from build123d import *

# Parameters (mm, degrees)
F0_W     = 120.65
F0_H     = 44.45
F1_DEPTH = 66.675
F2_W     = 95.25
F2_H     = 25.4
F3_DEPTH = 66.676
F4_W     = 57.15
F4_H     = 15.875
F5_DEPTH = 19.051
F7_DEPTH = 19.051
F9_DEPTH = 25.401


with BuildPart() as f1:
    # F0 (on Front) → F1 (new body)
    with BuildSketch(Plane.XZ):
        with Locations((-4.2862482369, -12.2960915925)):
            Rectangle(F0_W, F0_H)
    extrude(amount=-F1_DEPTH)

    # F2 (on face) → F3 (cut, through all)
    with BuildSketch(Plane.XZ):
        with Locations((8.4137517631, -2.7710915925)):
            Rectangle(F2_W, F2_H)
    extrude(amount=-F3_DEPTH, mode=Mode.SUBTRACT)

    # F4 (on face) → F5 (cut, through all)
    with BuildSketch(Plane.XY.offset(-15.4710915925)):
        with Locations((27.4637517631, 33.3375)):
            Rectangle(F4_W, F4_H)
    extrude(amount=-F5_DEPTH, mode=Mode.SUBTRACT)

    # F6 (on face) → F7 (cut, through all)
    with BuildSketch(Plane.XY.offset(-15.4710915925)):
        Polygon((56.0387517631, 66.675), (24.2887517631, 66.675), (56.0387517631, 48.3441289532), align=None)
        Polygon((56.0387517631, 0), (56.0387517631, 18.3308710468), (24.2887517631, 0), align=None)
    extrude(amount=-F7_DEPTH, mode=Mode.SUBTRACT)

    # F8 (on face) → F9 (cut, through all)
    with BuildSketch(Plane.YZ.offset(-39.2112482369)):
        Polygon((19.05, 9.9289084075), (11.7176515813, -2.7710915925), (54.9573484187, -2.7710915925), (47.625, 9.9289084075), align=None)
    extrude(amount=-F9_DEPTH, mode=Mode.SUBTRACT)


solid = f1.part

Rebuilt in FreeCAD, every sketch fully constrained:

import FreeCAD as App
import Part
import Sketcher
Q = App.Units.Quantity

doc = App.newDocument("Part")
params = doc.addObject("Spreadsheet::Sheet", "Params")
for row, (alias, value) in enumerate([
    ("sketch1_width", "4.75 in"),
    ("sketch1_height", "1.75 in"),
    ("pad1_length", "2.625 in"),
    ("sketch2_height", "1 in"),
    ("sketch2_width", "3.75 in"),
    ("sketch3_width", "2.25 in"),
    ("sketch3_height", "0.625 in"),
    ("sketch4_width", "1.25 in"),
    ("sketch5_width", "1.125 in"),
], start=1):
    params.set(f"A{row}", alias)
    params.set(f"B{row}", "=" + value)
    params.setAlias(f"B{row}", alias)

body = doc.addObject("PartDesign::Body", "Body")

sketch1 = body.newObject("Sketcher::SketchObject", "Sketch")
sketch1.AttachmentSupport = (doc.getObject("XZ_Plane"), [""])
sketch1.MapMode = "FlatFace"
sketch1.addGeometry([
    Part.LineSegment(App.Vector(-65, 10, 0), App.Vector(-65, -35, 0)),
    Part.LineSegment(App.Vector(-65, -35, 0), App.Vector(56, -35, 0)),
    Part.LineSegment(App.Vector(56, -35, 0), App.Vector(56, 10, 0)),
    Part.LineSegment(App.Vector(56, 10, 0), App.Vector(-65, 10, 0)),
], False)
sketch1.addConstraint([
    Sketcher.Constraint("Coincident", 0, 2, 1, 1),
    Sketcher.Constraint("Coincident", 1, 2, 2, 1),
    Sketcher.Constraint("Coincident", 2, 2, 3, 1),
    Sketcher.Constraint("Coincident", 3, 2, 0, 1),
    Sketcher.Constraint("Vertical", 0),
    Sketcher.Constraint("Horizontal", 1),
    Sketcher.Constraint("Vertical", 2),
    Sketcher.Constraint("Horizontal", 3),
    Sketcher.Constraint("DistanceX", 1, 1, 1, 2, Q("4.75 in")),
    Sketcher.Constraint("DistanceY", 0, 2, 0, 1, Q("1.75 in")),
    Sketcher.Constraint("DistanceX", 0, 2, -1, 1, 64.611248),
    Sketcher.Constraint("DistanceY", 0, 2, -1, 1, 34.521092),
])
sketch1.setExpression("Constraints[8]", "Params.sketch1_width")
sketch1.setExpression("Constraints[9]", "Params.sketch1_height")
pad1 = body.newObject("PartDesign::Pad", "Pad")
pad1.Profile = sketch1
pad1.setExpression("Length", "Params.pad1_length")
pad1.Reversed = True

sketch2 = body.newObject("Sketcher::SketchObject", "Sketch001")
sketch2.AttachmentSupport = (doc.getObject("XZ_Plane"), [""])
sketch2.MapMode = "FlatFace"
sketch2.addGeometry([
    Part.LineSegment(App.Vector(-39, 10, 0), App.Vector(-39, -15, 0)),
    Part.LineSegment(App.Vector(-39, -15, 0), App.Vector(56, -15, 0)),
    Part.LineSegment(App.Vector(56, -15, 0), App.Vector(56, 10, 0)),
    Part.LineSegment(App.Vector(56, 10, 0), App.Vector(-39, 10, 0)),
], False)
sketch2.addConstraint([
    Sketcher.Constraint("Coincident", 0, 2, 1, 1),
    Sketcher.Constraint("Coincident", 1, 2, 2, 1),
    Sketcher.Constraint("Coincident", 2, 2, 3, 1),
    Sketcher.Constraint("Coincident", 3, 2, 0, 1),
    Sketcher.Constraint("Vertical", 0),
    Sketcher.Constraint("Horizontal", 1),
    Sketcher.Constraint("Vertical", 2),
    Sketcher.Constraint("Horizontal", 3),
    Sketcher.Constraint("DistanceY", 0, 2, 0, 1, Q("1 in")),
    Sketcher.Constraint("DistanceX", 1, 1, 1, 2, Q("3.75 in")),
    Sketcher.Constraint("DistanceX", 0, 2, -1, 1, 39.211248),
    Sketcher.Constraint("DistanceY", 0, 2, -1, 1, 15.471092),
])
sketch2.setExpression("Constraints[8]", "Params.sketch2_height")
sketch2.setExpression("Constraints[9]", "Params.sketch2_width")
pocket1 = body.newObject("PartDesign::Pocket", "Pocket")
pocket1.Profile = sketch2
pocket1.Type = "ThroughAll"

sketch3 = body.newObject("Sketcher::SketchObject", "Sketch002")
sketch3.AttachmentSupport = (doc.getObject("XY_Plane"), [""])
sketch3.MapMode = "FlatFace"
sketch3.AttachmentOffset = App.Placement(App.Vector(0, 0, -15.471092), App.Rotation())
sketch3.addGeometry([
    Part.LineSegment(App.Vector(-1, 41, 0), App.Vector(-1, 25, 0)),
    Part.LineSegment(App.Vector(-1, 25, 0), App.Vector(56, 25, 0)),
    Part.LineSegment(App.Vector(56, 25, 0), App.Vector(56, 41, 0)),
    Part.LineSegment(App.Vector(56, 41, 0), App.Vector(-1, 41, 0)),
], False)
sketch3.addConstraint([
    Sketcher.Constraint("Coincident", 0, 2, 1, 1),
    Sketcher.Constraint("Coincident", 1, 2, 2, 1),
    Sketcher.Constraint("Coincident", 2, 2, 3, 1),
    Sketcher.Constraint("Coincident", 3, 2, 0, 1),
    Sketcher.Constraint("Vertical", 0),
    Sketcher.Constraint("Horizontal", 1),
    Sketcher.Constraint("Vertical", 2),
    Sketcher.Constraint("Horizontal", 3),
    Sketcher.Constraint("DistanceY", -1, 1, 0, 2, Q("1 in")),
    Sketcher.Constraint("DistanceX", 1, 1, 1, 2, Q("2.25 in")),
    Sketcher.Constraint("DistanceY", 0, 2, 0, 1, Q("0.625 in")),
    Sketcher.Constraint("DistanceX", 0, 2, -1, 1, 1.111248),
])
sketch3.setExpression("Constraints[9]", "Params.sketch3_width")
sketch3.setExpression("Constraints[10]", "Params.sketch3_height")
pocket2 = body.newObject("PartDesign::Pocket", "Pocket001")
pocket2.Profile = sketch3
pocket2.Type = "ThroughAll"

sketch4 = body.newObject("Sketcher::SketchObject", "Sketch003")
sketch4.AttachmentSupport = (doc.getObject("XY_Plane"), [""])
sketch4.MapMode = "FlatFace"
sketch4.AttachmentOffset = App.Placement(App.Vector(0, 0, -15.471092), App.Rotation())
sketch4.addGeometry([
    Part.LineSegment(App.Vector(56, 67, 0), App.Vector(24, 67, 0)),
    Part.LineSegment(App.Vector(24, 67, 0), App.Vector(56, 48, 0)),
    Part.LineSegment(App.Vector(56, 48, 0), App.Vector(56, 67, 0)),
    Part.LineSegment(App.Vector(56, 0, 0), App.Vector(56, 18, 0)),
    Part.LineSegment(App.Vector(56, 18, 0), App.Vector(24, 0, 0)),
    Part.LineSegment(App.Vector(24, 0, 0), App.Vector(56, 0, 0)),
], False)
sketch4.addConstraint([
    Sketcher.Constraint("Coincident", 0, 2, 1, 1),
    Sketcher.Constraint("Coincident", 1, 2, 2, 1),
    Sketcher.Constraint("Coincident", 2, 2, 0, 1),
    Sketcher.Constraint("Coincident", 3, 2, 4, 1),
    Sketcher.Constraint("Coincident", 4, 2, 5, 1),
    Sketcher.Constraint("Coincident", 5, 2, 3, 1),
    Sketcher.Constraint("Horizontal", 0),
    Sketcher.Constraint("Vertical", 2),
    Sketcher.Constraint("Vertical", 3),
    Sketcher.Constraint("Horizontal", 5),
    Sketcher.Constraint("PointOnObject", 4, 2, -1),
    Sketcher.Constraint("Vertical", 2, 2, 3, 2),
    Sketcher.Constraint("Vertical", 0, 2, 4, 2),
    Sketcher.Constraint("Equal", 2, 3),
    Sketcher.Constraint("Angle", 1, Q("-30 deg")),
    Sketcher.Constraint("DistanceX", 0, 2, 0, 1, Q("1.25 in")),
    Sketcher.Constraint("DistanceY", -1, 1, 0, 2, Q("2.625 in")),
    Sketcher.Constraint("DistanceX", -1, 1, 0, 2, 24.288752),
])
sketch4.setExpression("Constraints[15]", "Params.sketch4_width")
pocket3 = body.newObject("PartDesign::Pocket", "Pocket002")
pocket3.Profile = sketch4
pocket3.Type = "ThroughAll"

sketch5 = body.newObject("Sketcher::SketchObject", "Sketch004")
sketch5.AttachmentSupport = (doc.getObject("YZ_Plane"), [""])
sketch5.MapMode = "FlatFace"
sketch5.AttachmentOffset = App.Placement(App.Vector(0, 0, -39.211248), App.Rotation())
sketch5.addGeometry([
    Part.LineSegment(App.Vector(19, 10, 0), App.Vector(12, -3, 0)),
    Part.LineSegment(App.Vector(12, -3, 0), App.Vector(55, -3, 0)),
    Part.LineSegment(App.Vector(55, -3, 0), App.Vector(48, 10, 0)),
    Part.LineSegment(App.Vector(48, 10, 0), App.Vector(19, 10, 0)),
], False)
sketch5.addConstraint([
    Sketcher.Constraint("Coincident", 0, 2, 1, 1),
    Sketcher.Constraint("Coincident", 1, 2, 2, 1),
    Sketcher.Constraint("Coincident", 2, 2, 3, 1),
    Sketcher.Constraint("Coincident", 3, 2, 0, 1),
    Sketcher.Constraint("Horizontal", 1),
    Sketcher.Constraint("Horizontal", 3),
    Sketcher.Constraint("Equal", 0, 2),
    Sketcher.Constraint("Angle", 0, Q("-120 deg")),
    Sketcher.Constraint("DistanceY", 1, 2, 2, 2, Q("0.5 in")),
    Sketcher.Constraint("DistanceX", 3, 2, 3, 1, Q("1.125 in")),
    Sketcher.Constraint("DistanceX", -1, 1, 3, 2, Q("0.75 in")),
    Sketcher.Constraint("DistanceY", 0, 2, -1, 1, 2.771092),
])
sketch5.setExpression("Constraints[9]", "Params.sketch5_width")
pocket4 = body.newObject("PartDesign::Pocket", "Pocket003")
pocket4.Profile = sketch5
pocket4.Type = "ThroughAll"

doc.recompute()
